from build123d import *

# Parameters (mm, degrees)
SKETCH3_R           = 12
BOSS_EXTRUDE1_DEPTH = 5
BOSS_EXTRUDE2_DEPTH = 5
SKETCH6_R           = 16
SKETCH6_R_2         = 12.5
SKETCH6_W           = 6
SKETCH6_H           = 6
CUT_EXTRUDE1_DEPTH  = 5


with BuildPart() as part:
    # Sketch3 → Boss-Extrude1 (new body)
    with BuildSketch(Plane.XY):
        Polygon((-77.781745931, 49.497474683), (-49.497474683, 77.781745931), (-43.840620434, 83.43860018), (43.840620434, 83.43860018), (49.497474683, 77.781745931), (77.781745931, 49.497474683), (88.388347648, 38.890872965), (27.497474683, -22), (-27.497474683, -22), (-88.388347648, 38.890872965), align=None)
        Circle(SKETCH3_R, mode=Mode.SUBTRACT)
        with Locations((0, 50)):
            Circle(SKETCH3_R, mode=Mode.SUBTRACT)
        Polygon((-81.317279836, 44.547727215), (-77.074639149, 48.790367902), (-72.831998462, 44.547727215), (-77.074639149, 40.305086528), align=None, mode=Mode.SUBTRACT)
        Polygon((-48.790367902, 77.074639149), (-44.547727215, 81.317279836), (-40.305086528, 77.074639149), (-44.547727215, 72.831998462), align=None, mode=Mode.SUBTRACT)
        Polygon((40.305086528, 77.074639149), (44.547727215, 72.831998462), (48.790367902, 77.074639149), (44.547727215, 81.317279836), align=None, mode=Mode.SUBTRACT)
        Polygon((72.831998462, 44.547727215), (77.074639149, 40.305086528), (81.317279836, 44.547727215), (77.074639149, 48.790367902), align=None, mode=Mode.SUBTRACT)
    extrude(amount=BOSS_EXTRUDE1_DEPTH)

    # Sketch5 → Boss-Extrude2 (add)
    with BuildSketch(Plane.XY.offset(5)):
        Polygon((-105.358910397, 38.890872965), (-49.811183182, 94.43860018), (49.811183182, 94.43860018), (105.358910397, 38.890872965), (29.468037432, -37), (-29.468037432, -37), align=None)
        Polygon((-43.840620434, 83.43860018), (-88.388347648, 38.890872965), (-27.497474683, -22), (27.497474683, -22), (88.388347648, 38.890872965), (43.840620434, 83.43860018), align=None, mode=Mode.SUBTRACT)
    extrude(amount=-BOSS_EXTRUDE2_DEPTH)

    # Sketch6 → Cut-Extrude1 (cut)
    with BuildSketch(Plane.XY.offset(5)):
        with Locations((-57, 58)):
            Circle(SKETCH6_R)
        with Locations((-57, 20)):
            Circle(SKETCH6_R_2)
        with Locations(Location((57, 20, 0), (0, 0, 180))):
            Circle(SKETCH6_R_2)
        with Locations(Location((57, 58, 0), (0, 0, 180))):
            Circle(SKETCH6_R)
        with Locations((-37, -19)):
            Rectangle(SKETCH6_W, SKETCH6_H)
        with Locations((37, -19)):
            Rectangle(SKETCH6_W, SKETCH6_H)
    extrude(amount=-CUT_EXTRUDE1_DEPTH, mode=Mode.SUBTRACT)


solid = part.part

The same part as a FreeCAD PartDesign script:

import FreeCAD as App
import Part
import Sketcher
Q = App.Units.Quantity


def add_polygon(sketch, points):
    """Adds a closed chain of lines whose ends are joined by coincident constraints."""
    first, n = sketch.GeometryCount, len(points)
    for a, b in zip(points, points[1:] + points[:1]):
        sketch.addGeometry(Part.LineSegment(App.Vector(*a, 0), App.Vector(*b, 0)), False)
    for i in range(n):
        sketch.addConstraint(Sketcher.Constraint("Coincident", first + i, 2, first + (i + 1) % n, 1))

doc = App.newDocument("Part")
body = doc.addObject("PartDesign::Body", "Body")

# Sketch on XY plane
sketch1 = body.newObject("Sketcher::SketchObject", "Sketch")
sketch1.AttachmentSupport = (doc.getObject("XY_Plane"), [""])
sketch1.MapMode = "FlatFace"
add_polygon(sketch1, [(-44, 83), (-78, 49), (-88, 39), (-27, -22), (27, -22), (88, 39), (78, 49), (44, 83)])  # lines 0-7
sketch1.addGeometry(Part.Circle(App.Vector(0, 0, 0), App.Vector(0, 0, 1), 12), False)  # 8
add_polygon(sketch1, [(73, 45), (77, 49), (81, 45), (77, 40)])  # lines 9-12
add_polygon(sketch1, [(40, 77), (45, 81), (49, 77), (45, 73)])  # lines 13-16
sketch1.addGeometry(Part.Circle(App.Vector(0, 50, 0), App.Vector(0, 0, 1), 12), False)  # 17
add_polygon(sketch1, [(-81, 45), (-77, 49), (-73, 45), (-77, 40)])  # lines 18-21
add_polygon(sketch1, [(-49, 77), (-45, 81), (-40, 77), (-45, 73)])  # lines 22-25
sketch1.addConstraint([
    Sketcher.Constraint("Horizontal", 3),
    Sketcher.Constraint("Horizontal", 7),
    Sketcher.Constraint("Coincident", 8, 3, -1, 1),
    Sketcher.Constraint("Equal", 8, 17),
    Sketcher.Constraint("Symmetric", 1, 2, 4, 2, -2),
    Sketcher.Constraint("Symmetric", 0, 2, 5, 2, -2),
    Sketcher.Constraint("Symmetric", 9, 2, 18, 2, -2),
    Sketcher.Constraint("Symmetric", 12, 2, 19, 2, -2),
    Sketcher.Constraint("Symmetric", 11, 2, 20, 2, -2),
    Sketcher.Constraint("Symmetric", 10, 2, 21, 2, -2),
    Sketcher.Constraint("Symmetric", 13, 2, 22, 2, -2),
    Sketcher.Constraint("Symmetric", 16, 2, 23, 2, -2),
    Sketcher.Constraint("Symmetric", 15, 2, 24, 2, -2),
    Sketcher.Constraint("Symmetric", 14, 2, 25, 2, -2),
    Sketcher.Constraint("PointOnObject", 17, 3, -2),
    Sketcher.Constraint("Parallel", 0, 1),
    Sketcher.Constraint("Perpendicular", 1, 2),
    Sketcher.Constraint("Perpendicular", 2, 4),
    Sketcher.Constraint("Perpendicular", 4, 5),
    Sketcher.Constraint("Parallel", 5, 6),
    Sketcher.Constraint("Perpendicular", 6, 9),
    Sketcher.Constraint("Perpendicular", 9, 10),
    Sketcher.Constraint("Perpendicular", 10, 11),
    Sketcher.Constraint("Perpendicular", 11, 12),
    Sketcher.Constraint("Perpendicular", 12, 13),
    Sketcher.Constraint("Perpendicular", 13, 14),
    Sketcher.Constraint("Perpendicular", 14, 15),
    Sketcher.Constraint("Perpendicular", 15, 16),
    Sketcher.Constraint("Horizontal", 10, 2, 12, 2),
    Sketcher.Constraint("Horizontal", 14, 2, 16, 2),
    Sketcher.Constraint("Equal", 12, 13),
    Sketcher.Constraint("Diameter", 8, Q("24 mm")),
    Sketcher.Constraint("Distance", 0, Q("48 mm")),
    Sketcher.Constraint("Distance", 1, Q("15 mm")),
    Sketcher.Constraint("Distance", 9, Q("6 mm")),
    Sketcher.Constraint("DistanceY", -1, 1, 17, 3, Q("50 mm")),
    Sketcher.Constraint("DistanceY", 2, 2, -1, 1, Q("22 mm")),
    Sketcher.Constraint("DistanceX", -1, 1, 12, 2, Q("72.831998 mm")),
    Sketcher.Constraint("DistanceY", -1, 1, 15, 2, Q("72.831998 mm")),
    Sketcher.Constraint("Distance", 2, Q("86.112698 mm")),
    Sketcher.Constraint("DistanceX", 3, 1, 3, 2, Q("54.994949 mm")),
    Sketcher.Constraint("DistanceY", 11, 2, 5, 2, Q("9.192388 mm")),
    Sketcher.Constraint("DistanceX", 13, 2, 9, 2, Q("32.526912 mm")),
])
pad1 = body.newObject("PartDesign::Pad", "Pad")
pad1.Profile = sketch1
pad1.Length = 5

# Sketch on XY plane
sketch2 = body.newObject("Sketcher::SketchObject", "Sketch001")
sketch2.AttachmentSupport = (doc.getObject("XY_Plane"), [""])
sketch2.MapMode = "FlatFace"
sketch2.AttachmentOffset = App.Placement(App.Vector(0, 0, 5), App.Rotation())
add_polygon(sketch2, [(-50, 94), (-105, 39), (-29, -37), (29, -37), (105, 39), (50, 94)])  # lines 0-5
add_polygon(sketch2, [(-44, 83), (44, 83), (88, 39), (27, -22), (-27, -22), (-88, 39)])  # lines 6-11
sketch2.addConstraint([
    Sketcher.Constraint("Horizontal", 2),
    Sketcher.Constraint("Horizontal", 5),
    Sketcher.Constraint("Horizontal", 6),
    Sketcher.Constraint("Horizontal", 9),
    Sketcher.Constraint("Symmetric", 0, 2, 3, 2, -2),
    Sketcher.Constraint("Symmetric", 7, 2, 10, 2, -2),
    Sketcher.Constraint("Perpendicular", 0, 1),
    Sketcher.Constraint("Perpendicular", 1, 3),
    Sketcher.Constraint("Perpendicular", 3, 4),
    Sketcher.Constraint("Parallel", 4, 7),
    Sketcher.Constraint("Perpendicular", 7, 8),
    Sketcher.Constraint("Perpendicular", 8, 10),
    Sketcher.Constraint("Perpendicular", 10, 11),
    Sketcher.Constraint("Horizontal", 3, 2, 7, 2),
    Sketcher.Constraint("Equal", 1, 3),
    Sketcher.Constraint("Distance", 7, Q("63 mm")),
    Sketcher.Constraint("DistanceY", 1, 2, -1, 1, Q("37 mm")),
    Sketcher.Constraint("DistanceY", 8, 2, -1, 1, Q("22 mm")),
    Sketcher.Constraint("DistanceY", 6, 2, 4, 2, Q("11 mm")),
    Sketcher.Constraint("Distance", 1, Q("107.325902 mm")),
    Sketcher.Constraint("DistanceX", 6, 1, 6, 2, Q("87.681241 mm")),
    Sketcher.Constraint("DistanceX", 2, 1, 2, 2, Q("58.936075 mm")),
])
pad2 = body.newObject("PartDesign::Pad", "Pad001")
pad2.Profile = sketch2
pad2.Length = 5
pad2.Reversed = True

# Sketch on XY plane
sketch3 = body.newObject("Sketcher::SketchObject", "Sketch002")
sketch3.AttachmentSupport = (doc.getObject("XY_Plane"), [""])
sketch3.MapMode = "FlatFace"
sketch3.AttachmentOffset = App.Placement(App.Vector(0, 0, 5), App.Rotation())
sketch3.addGeometry(Part.Circle(App.Vector(-57, 58, 0), App.Vector(0, 0, 1), 16), False)  # 0
sketch3.addGeometry(Part.Circle(App.Vector(-57, 20, 0), App.Vector(0, 0, 1), 12), False)  # 1
sketch3.addGeometry(Part.Circle(App.Vector(57, 20, 0), App.Vector(0, 0, 1), 12), False)  # 2
sketch3.addGeometry(Part.Circle(App.Vector(57, 58, 0), App.Vector(0, 0, 1), 16), False)  # 3
add_polygon(sketch3, [(-40, -16), (-40, -22), (-34, -22), (-34, -16)])  # lines 4-7
add_polygon(sketch3, [(34, -16), (34, -22), (40, -22), (40, -16)])  # lines 8-11
sketch3.addConstraint([
    Sketcher.Constraint("Vertical", 4),
    Sketcher.Constraint("Horizontal", 5),
    Sketcher.Constraint("Vertical", 6),
    Sketcher.Constraint("Horizontal", 7),
    Sketcher.Constraint("Vertical", 8),
    Sketcher.Constraint("Horizontal", 9),
    Sketcher.Constraint("Vertical", 10),
    Sketcher.Constraint("Horizontal", 11),
    Sketcher.Constraint("Equal", 1, 2),
    Sketcher.Constraint("Equal", 0, 3),
    Sketcher.Constraint("Symmetric", 1, 3, 2, 3, -2),
    Sketcher.Constraint("Symmetric", 0, 3, 3, 3, -2),
    Sketcher.Constraint("Symmetric", 5, 2, 8, 2, -2),
    Sketcher.Constraint("Symmetric", 7, 2, 10, 2, -2),
    Sketcher.Constraint("Vertical", 0, 3, 1, 3),
    Sketcher.Constraint("Equal", 11, 4),
    Sketcher.Constraint("Diameter", 0, Q("32 mm")),
    Sketcher.Constraint("Diameter", 1, Q("25 mm")),
    Sketcher.Constraint("DistanceX", 5, 1, 5, 2, Q("6 mm")),
    Sketcher.Constraint("DistanceX", 0, 3, -1, 1, Q("57 mm")),
    Sketcher.Constraint("DistanceY", -1, 1, 0, 3, Q("58 mm")),
    Sketcher.Constraint("DistanceY", -1, 1, 1, 3, Q("20 mm")),
    Sketcher.Constraint("DistanceX", 4, 2, -1, 1, Q("40 mm")),
    Sketcher.Constraint("DistanceY", 4, 2, -1, 1, Q("22 mm")),
])
pocket1 = body.newObject("PartDesign::Pocket", "Pocket")
pocket1.Profile = sketch3
pocket1.Length = 5

doc.recompute()
